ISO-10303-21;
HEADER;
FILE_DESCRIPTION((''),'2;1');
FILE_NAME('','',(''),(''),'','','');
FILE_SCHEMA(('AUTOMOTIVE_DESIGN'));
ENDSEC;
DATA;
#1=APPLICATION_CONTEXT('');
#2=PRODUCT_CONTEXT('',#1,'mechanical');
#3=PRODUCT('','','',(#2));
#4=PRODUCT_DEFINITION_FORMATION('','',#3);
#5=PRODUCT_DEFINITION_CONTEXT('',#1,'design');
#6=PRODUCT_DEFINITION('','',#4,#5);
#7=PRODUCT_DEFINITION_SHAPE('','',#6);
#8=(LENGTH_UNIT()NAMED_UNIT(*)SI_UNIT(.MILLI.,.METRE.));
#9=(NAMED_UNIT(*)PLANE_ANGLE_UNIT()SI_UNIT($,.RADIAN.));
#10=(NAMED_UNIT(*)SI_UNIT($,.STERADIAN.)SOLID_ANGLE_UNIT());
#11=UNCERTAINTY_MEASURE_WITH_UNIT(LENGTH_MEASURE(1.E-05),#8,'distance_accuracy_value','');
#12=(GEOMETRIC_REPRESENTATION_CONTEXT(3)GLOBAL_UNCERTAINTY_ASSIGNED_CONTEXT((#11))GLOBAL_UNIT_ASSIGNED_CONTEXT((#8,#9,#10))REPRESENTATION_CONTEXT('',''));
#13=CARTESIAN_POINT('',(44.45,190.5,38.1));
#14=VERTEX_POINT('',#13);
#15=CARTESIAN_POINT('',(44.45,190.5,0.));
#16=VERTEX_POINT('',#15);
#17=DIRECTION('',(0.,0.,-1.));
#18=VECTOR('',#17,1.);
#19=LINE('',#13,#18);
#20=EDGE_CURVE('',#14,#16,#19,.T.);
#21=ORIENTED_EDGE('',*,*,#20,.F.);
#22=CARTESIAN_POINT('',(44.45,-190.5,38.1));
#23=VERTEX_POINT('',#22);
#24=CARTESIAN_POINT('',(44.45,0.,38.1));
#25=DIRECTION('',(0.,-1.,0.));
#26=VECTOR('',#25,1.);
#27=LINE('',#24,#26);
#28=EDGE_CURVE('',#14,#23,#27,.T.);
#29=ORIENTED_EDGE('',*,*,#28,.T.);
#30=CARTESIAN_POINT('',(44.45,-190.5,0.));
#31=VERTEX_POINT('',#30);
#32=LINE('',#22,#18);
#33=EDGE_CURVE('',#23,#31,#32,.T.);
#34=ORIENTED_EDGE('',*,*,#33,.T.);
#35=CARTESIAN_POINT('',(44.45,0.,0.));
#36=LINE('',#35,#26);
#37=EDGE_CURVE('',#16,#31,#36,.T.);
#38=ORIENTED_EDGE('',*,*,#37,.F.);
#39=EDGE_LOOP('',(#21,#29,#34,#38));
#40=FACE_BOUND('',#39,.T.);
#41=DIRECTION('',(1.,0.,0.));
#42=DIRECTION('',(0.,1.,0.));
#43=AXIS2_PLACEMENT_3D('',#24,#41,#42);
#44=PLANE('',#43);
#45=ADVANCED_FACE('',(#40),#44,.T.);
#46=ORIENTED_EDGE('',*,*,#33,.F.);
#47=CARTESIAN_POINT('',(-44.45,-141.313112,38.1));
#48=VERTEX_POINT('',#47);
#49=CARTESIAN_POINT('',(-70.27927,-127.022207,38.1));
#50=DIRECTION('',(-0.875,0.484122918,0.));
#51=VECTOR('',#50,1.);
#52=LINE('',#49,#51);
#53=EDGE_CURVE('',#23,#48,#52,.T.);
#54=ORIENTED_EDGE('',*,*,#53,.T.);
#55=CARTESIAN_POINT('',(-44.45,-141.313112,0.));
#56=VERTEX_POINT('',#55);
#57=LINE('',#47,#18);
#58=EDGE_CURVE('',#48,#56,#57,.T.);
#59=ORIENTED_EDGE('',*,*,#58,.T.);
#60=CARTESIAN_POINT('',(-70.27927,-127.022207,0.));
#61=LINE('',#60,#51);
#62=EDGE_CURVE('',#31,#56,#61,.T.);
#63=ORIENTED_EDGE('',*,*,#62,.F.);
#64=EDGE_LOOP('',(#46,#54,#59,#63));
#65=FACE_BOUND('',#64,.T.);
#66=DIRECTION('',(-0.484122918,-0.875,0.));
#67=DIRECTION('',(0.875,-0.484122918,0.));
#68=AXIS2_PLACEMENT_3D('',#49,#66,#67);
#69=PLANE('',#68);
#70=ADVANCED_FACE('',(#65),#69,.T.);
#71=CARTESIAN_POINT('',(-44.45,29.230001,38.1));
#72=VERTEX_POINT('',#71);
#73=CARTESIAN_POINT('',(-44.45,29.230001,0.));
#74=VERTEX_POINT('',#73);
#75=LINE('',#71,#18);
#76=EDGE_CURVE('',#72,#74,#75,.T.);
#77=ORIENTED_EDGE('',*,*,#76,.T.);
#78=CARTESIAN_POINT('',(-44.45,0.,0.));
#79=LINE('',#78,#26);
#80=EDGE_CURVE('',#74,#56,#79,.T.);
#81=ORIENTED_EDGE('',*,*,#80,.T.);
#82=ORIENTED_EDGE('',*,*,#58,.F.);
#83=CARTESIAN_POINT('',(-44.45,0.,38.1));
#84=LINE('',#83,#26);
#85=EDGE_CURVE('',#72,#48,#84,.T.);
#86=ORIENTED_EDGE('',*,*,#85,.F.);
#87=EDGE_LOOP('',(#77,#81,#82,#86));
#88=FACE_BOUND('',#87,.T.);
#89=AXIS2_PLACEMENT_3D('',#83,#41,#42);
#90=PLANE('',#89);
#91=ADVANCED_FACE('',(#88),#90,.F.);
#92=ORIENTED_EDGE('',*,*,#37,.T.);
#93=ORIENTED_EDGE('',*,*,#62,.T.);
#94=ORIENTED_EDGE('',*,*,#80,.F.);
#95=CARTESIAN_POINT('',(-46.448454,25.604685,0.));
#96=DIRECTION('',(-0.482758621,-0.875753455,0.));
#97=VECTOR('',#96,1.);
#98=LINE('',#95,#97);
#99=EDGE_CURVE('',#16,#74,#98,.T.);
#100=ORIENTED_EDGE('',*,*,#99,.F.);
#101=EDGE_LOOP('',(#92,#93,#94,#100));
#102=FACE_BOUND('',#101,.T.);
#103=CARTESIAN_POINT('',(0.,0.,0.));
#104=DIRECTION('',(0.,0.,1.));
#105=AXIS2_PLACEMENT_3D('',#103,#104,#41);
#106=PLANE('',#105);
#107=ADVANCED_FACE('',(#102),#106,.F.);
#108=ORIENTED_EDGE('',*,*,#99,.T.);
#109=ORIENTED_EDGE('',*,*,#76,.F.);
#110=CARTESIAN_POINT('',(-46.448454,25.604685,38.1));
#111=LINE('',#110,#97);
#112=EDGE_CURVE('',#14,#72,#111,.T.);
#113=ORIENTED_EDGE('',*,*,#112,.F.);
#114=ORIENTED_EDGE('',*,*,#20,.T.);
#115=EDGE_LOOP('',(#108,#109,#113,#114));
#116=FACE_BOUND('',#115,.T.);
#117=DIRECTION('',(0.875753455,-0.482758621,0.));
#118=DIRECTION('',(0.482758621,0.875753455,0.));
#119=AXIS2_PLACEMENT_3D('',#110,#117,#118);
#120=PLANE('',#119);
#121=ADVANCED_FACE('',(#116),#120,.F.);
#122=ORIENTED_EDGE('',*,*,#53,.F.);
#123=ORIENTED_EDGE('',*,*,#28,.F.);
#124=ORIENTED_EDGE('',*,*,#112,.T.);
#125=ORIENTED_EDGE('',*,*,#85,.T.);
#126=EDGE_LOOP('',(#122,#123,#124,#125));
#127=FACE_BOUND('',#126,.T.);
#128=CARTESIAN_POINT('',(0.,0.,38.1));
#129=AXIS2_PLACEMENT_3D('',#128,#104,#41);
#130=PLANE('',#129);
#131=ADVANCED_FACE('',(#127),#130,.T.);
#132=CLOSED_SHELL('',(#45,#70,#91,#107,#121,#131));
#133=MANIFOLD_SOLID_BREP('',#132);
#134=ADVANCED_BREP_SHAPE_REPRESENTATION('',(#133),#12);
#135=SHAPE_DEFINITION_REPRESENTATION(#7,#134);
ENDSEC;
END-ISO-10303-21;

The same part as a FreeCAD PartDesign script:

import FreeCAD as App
import Part
import Sketcher
Q = App.Units.Quantity


def add_polygon(sketch, points):
    """Adds a closed chain of lines whose ends are joined by coincident constraints."""
    first, n = sketch.GeometryCount, len(points)
    for a, b in zip(points, points[1:] + points[:1]):
        sketch.addGeometry(Part.LineSegment(App.Vector(*a, 0), App.Vector(*b, 0)), False)
    for i in range(n):
        sketch.addConstraint(Sketcher.Constraint("Coincident", first + i, 2, first + (i + 1) % n, 1))

doc = App.newDocument("Part")
body = doc.addObject("PartDesign::Body", "Body")

sketch1 = body.newObject("Sketcher::SketchObject", "Sketch")
sketch1.AttachmentSupport = (doc.getObject("XY_Plane"), [""])
sketch1.MapMode = "FlatFace"
add_polygon(sketch1, [(44, -190), (44, 190), (-44, 29), (-44, -141)])
sketch1.addConstraint(Sketcher.Constraint("Vertical", 0))
sketch1.addConstraint(Sketcher.Constraint("Vertical", 2))
sketch1.addConstraint(Sketcher.Constraint("DistanceY", 0, 1, 0, 2, Q("15 in")))
sketch1.addConstraint(Sketcher.Constraint("Distance", 3, Q("4 in")))
sketch1.addConstraint(Sketcher.Constraint("DistanceY", -1, 1, 0, 2, Q("7.5 in")))
sketch1.addConstraint(Sketcher.Constraint("DistanceX", 1, 2, 0, 2, Q("3.5 in")))
sketch1.addConstraint(Sketcher.Constraint("Distance", 1, Q("7.25 in")))
sketch1.addConstraint(Sketcher.Constraint("DistanceX", -1, 1, 0, 2, Q("1.75 in")))
pad1 = body.newObject("PartDesign::Pad", "Pad")
pad1.Profile = sketch1
pad1.Length = Q("1.5 in")

doc.recompute()
